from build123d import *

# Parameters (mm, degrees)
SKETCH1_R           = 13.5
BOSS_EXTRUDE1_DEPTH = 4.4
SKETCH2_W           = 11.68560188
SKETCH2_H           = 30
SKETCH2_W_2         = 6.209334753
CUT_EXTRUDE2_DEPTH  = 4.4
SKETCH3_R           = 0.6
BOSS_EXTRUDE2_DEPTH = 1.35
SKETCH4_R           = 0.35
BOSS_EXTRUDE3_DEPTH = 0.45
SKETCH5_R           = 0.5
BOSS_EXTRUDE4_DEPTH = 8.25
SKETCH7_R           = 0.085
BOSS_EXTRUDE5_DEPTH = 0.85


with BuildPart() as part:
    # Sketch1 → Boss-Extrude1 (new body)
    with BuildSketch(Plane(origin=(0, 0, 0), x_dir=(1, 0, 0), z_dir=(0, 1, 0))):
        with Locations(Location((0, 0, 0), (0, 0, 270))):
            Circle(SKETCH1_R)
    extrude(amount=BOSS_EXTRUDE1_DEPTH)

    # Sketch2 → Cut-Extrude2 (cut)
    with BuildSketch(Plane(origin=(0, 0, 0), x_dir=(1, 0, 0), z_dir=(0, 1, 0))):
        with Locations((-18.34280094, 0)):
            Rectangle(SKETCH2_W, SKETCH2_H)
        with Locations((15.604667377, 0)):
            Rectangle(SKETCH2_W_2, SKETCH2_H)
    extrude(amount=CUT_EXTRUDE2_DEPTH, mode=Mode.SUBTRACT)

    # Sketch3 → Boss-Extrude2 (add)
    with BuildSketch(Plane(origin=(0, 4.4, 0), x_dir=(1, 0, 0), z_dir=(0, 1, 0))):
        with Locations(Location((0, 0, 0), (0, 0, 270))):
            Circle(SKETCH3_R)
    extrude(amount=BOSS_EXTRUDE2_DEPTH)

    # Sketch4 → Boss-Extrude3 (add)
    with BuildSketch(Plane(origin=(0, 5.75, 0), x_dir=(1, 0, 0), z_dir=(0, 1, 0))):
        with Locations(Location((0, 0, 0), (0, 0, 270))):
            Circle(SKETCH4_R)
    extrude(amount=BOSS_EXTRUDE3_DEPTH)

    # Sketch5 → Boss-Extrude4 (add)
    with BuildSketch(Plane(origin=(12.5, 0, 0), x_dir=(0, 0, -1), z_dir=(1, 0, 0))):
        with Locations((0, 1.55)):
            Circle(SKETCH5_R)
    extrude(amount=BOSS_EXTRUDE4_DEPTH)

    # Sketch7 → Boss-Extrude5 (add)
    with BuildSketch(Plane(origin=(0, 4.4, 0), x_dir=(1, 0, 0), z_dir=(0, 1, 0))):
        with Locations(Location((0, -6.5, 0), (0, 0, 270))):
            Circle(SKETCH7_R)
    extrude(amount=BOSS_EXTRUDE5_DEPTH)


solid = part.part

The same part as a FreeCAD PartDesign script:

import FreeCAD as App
import Part
import Sketcher

V = App.Vector

doc = App.newDocument("Part")
body = doc.addObject("PartDesign::Body", "Body")

# Sketch on XZ plane
sketch1 = doc.addObject("Sketcher::SketchObject", "Sketch")
body.addObject(sketch1)
sketch1.AttachmentSupport = (doc.XZ_Plane, [""])
sketch1.MapMode = "FlatFace"
sketch1.addGeometry(Part.Circle(V(0, 0, 0), V(0, 0, 1), 14), False)
sketch1.addConstraint(Sketcher.Constraint("Coincident", 0, 3, -1, 1))
sketch1.addConstraint(Sketcher.Constraint("Diameter", 0, 27.0))
pad1 = doc.addObject("PartDesign::Pad", "Pad")
body.addObject(pad1)
pad1.Profile = sketch1
pad1.Length = 4.4
pad1.Reversed = True

# Sketch on XZ plane
sketch2 = doc.addObject("Sketcher::SketchObject", "Sketch001")
body.addObject(sketch2)
sketch2.AttachmentSupport = (doc.XZ_Plane, [""])
sketch2.MapMode = "FlatFace"
sketch2.addGeometry(Part.LineSegment(V(-24, -15, 0), V(-24, 15, 0)), False)
sketch2.addGeometry(Part.LineSegment(V(-24, 15, 0), V(-12, 15, 0)), False)
sketch2.addGeometry(Part.LineSegment(V(-12, 15, 0), V(-12, -15, 0)), False)
sketch2.addGeometry(Part.LineSegment(V(-12, -15, 0), V(-24, -15, 0)), False)
sketch2.addGeometry(Part.LineSegment(V(13, -15, 0), V(13, 15, 0)), False)
sketch2.addGeometry(Part.LineSegment(V(13, 15, 0), V(19, 15, 0)), False)
sketch2.addGeometry(Part.LineSegment(V(19, 15, 0), V(19, -15, 0)), False)
sketch2.addGeometry(Part.LineSegment(V(19, -15, 0), V(13, -15, 0)), False)
sketch2.addConstraint(Sketcher.Constraint("Coincident", 0, 2, 1, 1))
sketch2.addConstraint(Sketcher.Constraint("Coincident", 1, 2, 2, 1))
sketch2.addConstraint(Sketcher.Constraint("Coincident", 2, 2, 3, 1))
sketch2.addConstraint(Sketcher.Constraint("Coincident", 3, 2, 0, 1))
sketch2.addConstraint(Sketcher.Constraint("Coincident", 4, 2, 5, 1))
sketch2.addConstraint(Sketcher.Constraint("Coincident", 5, 2, 6, 1))
sketch2.addConstraint(Sketcher.Constraint("Coincident", 6, 2, 7, 1))
sketch2.addConstraint(Sketcher.Constraint("Coincident", 7, 2, 4, 1))
sketch2.addConstraint(Sketcher.Constraint("Vertical", 0))
sketch2.addConstraint(Sketcher.Constraint("Horizontal", 1))
sketch2.addConstraint(Sketcher.Constraint("Vertical", 2))
sketch2.addConstraint(Sketcher.Constraint("Horizontal", 3))
sketch2.addConstraint(Sketcher.Constraint("Vertical", 4))
sketch2.addConstraint(Sketcher.Constraint("Horizontal", 5))
sketch2.addConstraint(Sketcher.Constraint("Vertical", 6))
sketch2.addConstraint(Sketcher.Constraint("Horizontal", 7))
sketch2.addConstraint(Sketcher.Constraint("Symmetric", 2, 2, 4, 2, -1, 1))
sketch2.addConstraint(Sketcher.Constraint("Horizontal", 1, 2, 4, 2))
sketch2.addConstraint(Sketcher.Constraint("Horizontal", 3, 2, 6, 2))
sketch2.addConstraint(Sketcher.Constraint("DistanceY", 0, 1, 0, 2, 30.0))
sketch2.addConstraint(Sketcher.Constraint("DistanceX", 1, 2, 4, 2, 25.0))
sketch2.addConstraint(Sketcher.Constraint("DistanceX", 1, 1, 1, 2, 11.685602))
sketch2.addConstraint(Sketcher.Constraint("DistanceX", 5, 1, 5, 2, 6.209335))
pocket1 = doc.addObject("PartDesign::Pocket", "Pocket")
body.addObject(pocket1)
pocket1.Profile = sketch2
pocket1.Length = 4.4

# Sketch on XZ plane
sketch3 = doc.addObject("Sketcher::SketchObject", "Sketch002")
body.addObject(sketch3)
sketch3.AttachmentSupport = (doc.XZ_Plane, [""])
sketch3.MapMode = "FlatFace"
sketch3.AttachmentOffset = App.Placement(V(0, 0, -4.4), App.Rotation())
sketch3.addGeometry(Part.Circle(V(0, 0, 0), V(0, 0, 1), 0.6), False)
sketch3.addConstraint(Sketcher.Constraint("Coincident", 0, 3, -1, 1))
sketch3.addConstraint(Sketcher.Constraint("Diameter", 0, 1.2))
pad2 = doc.addObject("PartDesign::Pad", "Pad001")
body.addObject(pad2)
pad2.Profile = sketch3
pad2.Length = 1.35
pad2.Reversed = True

# Sketch on XZ plane
sketch4 = doc.addObject("Sketcher::SketchObject", "Sketch003")
body.addObject(sketch4)
sketch4.AttachmentSupport = (doc.XZ_Plane, [""])
sketch4.MapMode = "FlatFace"
sketch4.AttachmentOffset = App.Placement(V(0, 0, -5.75), App.Rotation())
sketch4.addGeometry(Part.Circle(V(0, 0, 0), V(0, 0, 1), 0.35), False)
sketch4.addConstraint(Sketcher.Constraint("Coincident", 0, 3, -1, 1))
sketch4.addConstraint(Sketcher.Constraint("Diameter", 0, 0.7))
pad3 = doc.addObject("PartDesign::Pad", "Pad002")
body.addObject(pad3)
pad3.Profile = sketch4
pad3.Length = 0.45
pad3.Reversed = True

# Sketch on YZ plane
sketch5 = doc.addObject("Sketcher::SketchObject", "Sketch004")
body.addObject(sketch5)
sketch5.AttachmentSupport = (doc.YZ_Plane, [""])
sketch5.MapMode = "FlatFace"
sketch5.AttachmentOffset = App.Placement(V(0, 0, 12.5), App.Rotation())
sketch5.addGeometry(Part.Circle(V(1.6, 0, 0), V(0, 0, 1), 0.5), False)
sketch5.addConstraint(Sketcher.Constraint("PointOnObject", 0, 3, -1))
sketch5.addConstraint(Sketcher.Constraint("Diameter", 0, 1.0))
sketch5.addConstraint(Sketcher.Constraint("DistanceX", -1, 1, 0, 3, 1.55))
pad4 = doc.addObject("PartDesign::Pad", "Pad003")
body.addObject(pad4)
pad4.Profile = sketch5
pad4.Length = 8.25

# Sketch on XZ plane
sketch6 = doc.addObject("Sketcher::SketchObject", "Sketch005")
body.addObject(sketch6)
sketch6.AttachmentSupport = (doc.XZ_Plane, [""])
sketch6.MapMode = "FlatFace"
sketch6.AttachmentOffset = App.Placement(V(0, 0, -4.4), App.Rotation())
sketch6.addGeometry(Part.Circle(V(0, 6.5, 0), V(0, 0, 1), 0.09), False)
sketch6.addConstraint(Sketcher.Constraint("PointOnObject", 0, 3, -2))
sketch6.addConstraint(Sketcher.Constraint("Diameter", 0, 0.17))
sketch6.addConstraint(Sketcher.Constraint("DistanceY", -1, 1, 0, 3, 6.5))
pad5 = doc.addObject("PartDesign::Pad", "Pad004")
body.addObject(pad5)
pad5.Profile = sketch6
pad5.Length = 0.85
pad5.Reversed = True

doc.recompute()
